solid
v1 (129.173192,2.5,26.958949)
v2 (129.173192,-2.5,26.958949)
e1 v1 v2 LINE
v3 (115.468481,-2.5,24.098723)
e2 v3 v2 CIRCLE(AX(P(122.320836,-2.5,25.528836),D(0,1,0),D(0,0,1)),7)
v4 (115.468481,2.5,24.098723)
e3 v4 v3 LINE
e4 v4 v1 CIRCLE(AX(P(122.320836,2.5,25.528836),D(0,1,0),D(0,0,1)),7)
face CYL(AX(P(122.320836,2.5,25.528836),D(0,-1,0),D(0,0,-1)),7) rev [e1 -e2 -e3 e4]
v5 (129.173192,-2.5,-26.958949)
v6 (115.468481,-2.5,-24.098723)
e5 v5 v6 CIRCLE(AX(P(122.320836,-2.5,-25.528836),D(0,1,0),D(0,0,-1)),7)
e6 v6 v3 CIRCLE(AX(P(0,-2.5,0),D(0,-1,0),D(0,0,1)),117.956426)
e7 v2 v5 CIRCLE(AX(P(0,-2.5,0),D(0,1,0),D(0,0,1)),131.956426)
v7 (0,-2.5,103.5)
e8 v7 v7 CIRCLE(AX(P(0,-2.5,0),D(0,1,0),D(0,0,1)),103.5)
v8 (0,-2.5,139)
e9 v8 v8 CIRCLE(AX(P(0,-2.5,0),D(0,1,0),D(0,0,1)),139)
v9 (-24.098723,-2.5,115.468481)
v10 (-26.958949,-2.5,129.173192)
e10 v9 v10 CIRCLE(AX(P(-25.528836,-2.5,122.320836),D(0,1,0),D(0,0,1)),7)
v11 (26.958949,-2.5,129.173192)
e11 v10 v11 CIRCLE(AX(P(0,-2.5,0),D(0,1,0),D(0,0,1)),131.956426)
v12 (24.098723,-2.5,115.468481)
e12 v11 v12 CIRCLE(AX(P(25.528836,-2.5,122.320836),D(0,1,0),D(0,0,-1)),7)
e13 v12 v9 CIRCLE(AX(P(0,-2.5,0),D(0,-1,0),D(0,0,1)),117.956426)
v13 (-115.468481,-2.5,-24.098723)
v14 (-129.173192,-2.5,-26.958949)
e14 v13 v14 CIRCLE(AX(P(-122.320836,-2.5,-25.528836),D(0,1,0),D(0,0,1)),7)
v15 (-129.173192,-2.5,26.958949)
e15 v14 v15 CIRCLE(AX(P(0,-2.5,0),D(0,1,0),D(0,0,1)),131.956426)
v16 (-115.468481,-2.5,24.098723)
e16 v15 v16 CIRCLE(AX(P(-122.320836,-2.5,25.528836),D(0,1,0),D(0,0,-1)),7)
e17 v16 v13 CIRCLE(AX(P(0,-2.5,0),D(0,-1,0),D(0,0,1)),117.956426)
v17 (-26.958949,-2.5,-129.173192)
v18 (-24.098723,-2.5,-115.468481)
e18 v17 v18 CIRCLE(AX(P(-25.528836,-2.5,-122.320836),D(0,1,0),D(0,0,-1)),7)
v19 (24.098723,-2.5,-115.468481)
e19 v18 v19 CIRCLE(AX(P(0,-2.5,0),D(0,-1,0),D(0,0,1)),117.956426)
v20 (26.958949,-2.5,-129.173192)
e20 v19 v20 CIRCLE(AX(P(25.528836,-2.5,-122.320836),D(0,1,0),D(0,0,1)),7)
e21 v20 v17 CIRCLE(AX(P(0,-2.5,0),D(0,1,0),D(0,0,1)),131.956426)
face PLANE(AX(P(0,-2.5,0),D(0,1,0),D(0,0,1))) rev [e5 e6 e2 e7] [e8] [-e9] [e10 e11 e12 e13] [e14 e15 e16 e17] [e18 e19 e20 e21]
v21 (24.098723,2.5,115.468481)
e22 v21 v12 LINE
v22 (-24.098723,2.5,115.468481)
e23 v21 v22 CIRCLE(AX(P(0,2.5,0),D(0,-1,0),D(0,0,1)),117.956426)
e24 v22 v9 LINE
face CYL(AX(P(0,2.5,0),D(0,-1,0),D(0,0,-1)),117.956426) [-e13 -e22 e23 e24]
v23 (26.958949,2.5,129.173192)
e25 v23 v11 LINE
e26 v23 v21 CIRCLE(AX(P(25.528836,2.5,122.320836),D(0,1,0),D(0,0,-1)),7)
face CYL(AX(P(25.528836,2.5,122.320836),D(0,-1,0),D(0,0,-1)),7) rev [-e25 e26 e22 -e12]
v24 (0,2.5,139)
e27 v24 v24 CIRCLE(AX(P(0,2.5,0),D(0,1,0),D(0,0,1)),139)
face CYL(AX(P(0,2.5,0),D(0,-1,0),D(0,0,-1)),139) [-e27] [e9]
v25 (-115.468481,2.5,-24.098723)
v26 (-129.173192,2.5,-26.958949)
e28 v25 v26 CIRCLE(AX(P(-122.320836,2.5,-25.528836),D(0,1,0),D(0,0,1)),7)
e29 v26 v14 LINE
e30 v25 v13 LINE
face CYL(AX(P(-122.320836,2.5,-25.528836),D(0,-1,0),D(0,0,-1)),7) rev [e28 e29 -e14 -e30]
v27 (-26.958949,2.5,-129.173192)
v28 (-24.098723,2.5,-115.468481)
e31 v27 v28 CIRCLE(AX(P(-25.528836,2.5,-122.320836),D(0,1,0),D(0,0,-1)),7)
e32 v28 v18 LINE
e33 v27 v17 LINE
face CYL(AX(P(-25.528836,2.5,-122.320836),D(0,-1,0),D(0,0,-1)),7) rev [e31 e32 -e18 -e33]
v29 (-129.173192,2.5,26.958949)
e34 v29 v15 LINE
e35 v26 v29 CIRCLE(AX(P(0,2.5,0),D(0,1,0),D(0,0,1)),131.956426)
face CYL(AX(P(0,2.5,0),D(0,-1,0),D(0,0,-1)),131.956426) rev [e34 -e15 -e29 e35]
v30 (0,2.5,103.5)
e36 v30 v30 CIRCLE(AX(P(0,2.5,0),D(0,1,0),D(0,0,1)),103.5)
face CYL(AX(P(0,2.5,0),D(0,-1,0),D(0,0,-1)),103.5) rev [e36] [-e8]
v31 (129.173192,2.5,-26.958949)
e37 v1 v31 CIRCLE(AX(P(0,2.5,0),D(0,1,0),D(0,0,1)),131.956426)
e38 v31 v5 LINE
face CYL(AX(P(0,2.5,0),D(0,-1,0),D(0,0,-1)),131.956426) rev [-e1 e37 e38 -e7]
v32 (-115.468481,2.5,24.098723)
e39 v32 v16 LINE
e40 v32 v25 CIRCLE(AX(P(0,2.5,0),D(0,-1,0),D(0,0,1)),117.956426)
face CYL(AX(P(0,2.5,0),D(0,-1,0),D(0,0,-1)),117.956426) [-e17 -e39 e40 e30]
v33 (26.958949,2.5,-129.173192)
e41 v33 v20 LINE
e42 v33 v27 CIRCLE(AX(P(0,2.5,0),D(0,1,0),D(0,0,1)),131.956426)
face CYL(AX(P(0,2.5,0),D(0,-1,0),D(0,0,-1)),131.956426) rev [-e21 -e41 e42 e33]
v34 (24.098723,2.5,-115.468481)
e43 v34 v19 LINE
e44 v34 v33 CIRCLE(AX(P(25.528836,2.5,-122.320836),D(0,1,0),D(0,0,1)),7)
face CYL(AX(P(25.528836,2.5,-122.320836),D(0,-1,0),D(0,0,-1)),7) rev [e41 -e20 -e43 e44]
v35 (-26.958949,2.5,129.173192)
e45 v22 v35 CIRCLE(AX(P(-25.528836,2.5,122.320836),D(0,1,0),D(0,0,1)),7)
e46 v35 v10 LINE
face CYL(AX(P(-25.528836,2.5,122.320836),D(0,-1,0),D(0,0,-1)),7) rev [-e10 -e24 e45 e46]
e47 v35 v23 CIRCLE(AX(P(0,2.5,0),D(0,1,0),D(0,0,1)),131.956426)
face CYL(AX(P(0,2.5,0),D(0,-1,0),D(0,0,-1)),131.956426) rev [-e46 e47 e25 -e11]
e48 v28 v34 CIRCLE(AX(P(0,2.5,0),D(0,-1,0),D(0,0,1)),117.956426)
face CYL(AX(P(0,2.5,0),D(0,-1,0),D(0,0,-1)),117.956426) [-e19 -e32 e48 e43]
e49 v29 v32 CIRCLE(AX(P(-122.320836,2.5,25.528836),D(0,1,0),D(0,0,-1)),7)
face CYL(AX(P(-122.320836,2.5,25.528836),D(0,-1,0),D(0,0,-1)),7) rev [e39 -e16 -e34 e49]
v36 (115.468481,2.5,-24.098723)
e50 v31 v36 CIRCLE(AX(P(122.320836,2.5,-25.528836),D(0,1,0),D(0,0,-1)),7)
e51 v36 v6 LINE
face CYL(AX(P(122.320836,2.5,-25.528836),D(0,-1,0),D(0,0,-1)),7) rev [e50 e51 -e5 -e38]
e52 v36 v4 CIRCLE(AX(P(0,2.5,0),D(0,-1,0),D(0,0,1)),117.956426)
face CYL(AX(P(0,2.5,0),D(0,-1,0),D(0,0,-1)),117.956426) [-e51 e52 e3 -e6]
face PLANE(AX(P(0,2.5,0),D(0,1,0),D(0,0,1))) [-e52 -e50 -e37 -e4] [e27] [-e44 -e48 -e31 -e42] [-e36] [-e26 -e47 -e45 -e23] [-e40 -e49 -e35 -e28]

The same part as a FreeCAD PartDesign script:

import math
import FreeCAD as App
import Part
import Sketcher
from FreeCAD import Vector
Q = App.Units.Quantity

doc = App.newDocument("Part")
params = doc.addObject("Spreadsheet::Sheet", "Params")
for row, (alias, value) in enumerate([
    ("sketch1_diameter", "278 mm"),
    ("sketch1_diameter2", "207 mm"),
    ("sketch1_radius", "7 mm"),
    ("pad1_length", "5 mm"),
], start=1):
    params.set(f"A{row}", alias)
    params.set(f"B{row}", "=" + value)
    params.setAlias(f"B{row}", alias)

body = doc.addObject("PartDesign::Body", "Body")

# Sketch on XZ plane
sketch1 = body.newObject("Sketcher::SketchObject", "Sketch")
sketch1.AttachmentSupport = (doc.getObject("XZ_Plane"), [""])
sketch1.MapMode = "FlatFace"
sketch1.addGeometry(Part.Circle(Vector(0, 0, 0), Vector(0, 0, 1), 139), False)
sketch1.addGeometry(Part.ArcOfCircle(Part.Circle(Vector(0, 0, 0), Vector(0, 0, 1), 117.956426), math.radians(-101.788636), math.radians(-78.211364)), False)
sketch1.addGeometry(Part.ArcOfCircle(Part.Circle(Vector(-25.528836, -122.320836, 0), Vector(0, 0, 1), 7), math.radians(78.211364), math.radians(258.211364)), False)
sketch1.addGeometry(Part.ArcOfCircle(Part.Circle(Vector(0, 0, 0), Vector(0, 0, 1), 131.956426), math.radians(-101.788636), math.radians(-78.211364)), False)
sketch1.addGeometry(Part.ArcOfCircle(Part.Circle(Vector(25.528836, -122.320836, 0), Vector(0, 0, 1), 7), math.radians(-78.211364), math.radians(101.788636)), False)
sketch1.addGeometry(Part.ArcOfCircle(Part.Circle(Vector(-122.320836, -25.528836, 0), Vector(0, 0, 1), 7), math.radians(-168.211364), math.radians(11.788636)), False)
sketch1.addGeometry(Part.ArcOfCircle(Part.Circle(Vector(0, 0, 0), Vector(0, 0, 1), 117.956426), math.radians(168.211364), math.radians(191.788636)), False)
sketch1.addGeometry(Part.ArcOfCircle(Part.Circle(Vector(-122.320836, 25.528836, 0), Vector(0, 0, 1), 7), math.radians(-11.788636), math.radians(168.211364)), False)
sketch1.addGeometry(Part.ArcOfCircle(Part.Circle(Vector(0, 0, 0), Vector(0, 0, 1), 131.956426), math.radians(168.211364), math.radians(191.788636)), False)
sketch1.addGeometry(Part.ArcOfCircle(Part.Circle(Vector(0, 0, 0), Vector(0, 0, 1), 117.956426), math.radians(-11.788636), math.radians(11.788636)), False)
sketch1.addGeometry(Part.ArcOfCircle(Part.Circle(Vector(122.320836, -25.528836, 0), Vector(0, 0, 1), 7), math.radians(168.211364), math.radians(348.211364)), False)
sketch1.addGeometry(Part.ArcOfCircle(Part.Circle(Vector(0, 0, 0), Vector(0, 0, 1), 131.956426), math.radians(-11.788636), math.radians(11.788636)), False)
sketch1.addGeometry(Part.ArcOfCircle(Part.Circle(Vector(122.320836, 25.528836, 0), Vector(0, 0, 1), 7), math.radians(11.788636), math.radians(191.788636)), False)
sketch1.addGeometry(Part.Circle(Vector(0, 0, 0), Vector(0, 0, 1), 103.5), False)
sketch1.addGeometry(Part.ArcOfCircle(Part.Circle(Vector(0, 0, 0), Vector(0, 0, 1), 117.956426), math.radians(78.211364), math.radians(101.788636)), False)
sketch1.addGeometry(Part.ArcOfCircle(Part.Circle(Vector(25.528836, 122.320836, 0), Vector(0, 0, 1), 7), math.radians(-101.788636), math.radians(78.211364)), False)
sketch1.addGeometry(Part.ArcOfCircle(Part.Circle(Vector(0, 0, 0), Vector(0, 0, 1), 131.956426), math.radians(78.211364), math.radians(101.788636)), False)
sketch1.addGeometry(Part.ArcOfCircle(Part.Circle(Vector(-25.528836, 122.320836, 0), Vector(0, 0, 1), 7), math.radians(101.788636), math.radians(281.788636)), False)
sketch1.addConstraint(Sketcher.Constraint("Tangent", 1, 1, 2, 1))
sketch1.addConstraint(Sketcher.Constraint("Tangent", 2, 2, 3, 1))
sketch1.addConstraint(Sketcher.Constraint("Tangent", 3, 2, 4, 1))
sketch1.addConstraint(Sketcher.Constraint("Tangent", 4, 2, 1, 2))
sketch1.addConstraint(Sketcher.Constraint("Tangent", 5, 2, 6, 2))
sketch1.addConstraint(Sketcher.Constraint("Tangent", 6, 1, 7, 1))
sketch1.addConstraint(Sketcher.Constraint("Tangent", 7, 2, 8, 1))
sketch1.addConstraint(Sketcher.Constraint("Tangent", 8, 2, 5, 1))
sketch1.addConstraint(Sketcher.Constraint("Tangent", 9, 1, 10, 1))
sketch1.addConstraint(Sketcher.Constraint("Tangent", 10, 2, 11, 1))
sketch1.addConstraint(Sketcher.Constraint("Tangent", 11, 2, 12, 1))
sketch1.addConstraint(Sketcher.Constraint("Tangent", 12, 2, 9, 2))
sketch1.addConstraint(Sketcher.Constraint("Tangent", 14, 1, 15, 1))
sketch1.addConstraint(Sketcher.Constraint("Tangent", 15, 2, 16, 1))
sketch1.addConstraint(Sketcher.Constraint("Tangent", 16, 2, 17, 1))
sketch1.addConstraint(Sketcher.Constraint("Tangent", 17, 2, 14, 2))
sketch1.addConstraint(Sketcher.Constraint("Coincident", 0, 3, -1, 1))
sketch1.addConstraint(Sketcher.Constraint("Coincident", 1, 3, -1, 1))
sketch1.addConstraint(Sketcher.Constraint("Coincident", 3, 3, -1, 1))
sketch1.addConstraint(Sketcher.Constraint("Coincident", 6, 3, -1, 1))
sketch1.addConstraint(Sketcher.Constraint("Coincident", 8, 3, -1, 1))
sketch1.addConstraint(Sketcher.Constraint("Coincident", 9, 3, -1, 1))
sketch1.addConstraint(Sketcher.Constraint("Coincident", 11, 3, -1, 1))
sketch1.addConstraint(Sketcher.Constraint("Coincident", 13, 3, -1, 1))
sketch1.addConstraint(Sketcher.Constraint("Coincident", 14, 3, -1, 1))
sketch1.addConstraint(Sketcher.Constraint("Coincident", 16, 3, -1, 1))
sketch1.addConstraint(Sketcher.Constraint("Equal", 4, 5))
sketch1.addConstraint(Sketcher.Constraint("Equal", 1, 6))
sketch1.addConstraint(Sketcher.Constraint("Equal", 6, 9))
sketch1.addConstraint(Sketcher.Constraint("Equal", 7, 10))
sketch1.addConstraint(Sketcher.Constraint("Equal", 9, 14))
sketch1.addConstraint(Sketcher.Constraint("Equal", 12, 15))
sketch1.addConstraint(Sketcher.Constraint("Horizontal", 2, 3, 4, 3))
sketch1.addConstraint(Sketcher.Constraint("Horizontal", 5, 3, 10, 3))
sketch1.addConstraint(Sketcher.Constraint("Horizontal", 7, 3, 12, 3))
sketch1.addConstraint(Sketcher.Constraint("Horizontal", 15, 3, 17, 3))
sketch1.addConstraint(Sketcher.Constraint("Vertical", 5, 3, 7, 3))
sketch1.addConstraint(Sketcher.Constraint("Vertical", 4, 3, 15, 3))
sketch1.addConstraint(Sketcher.Constraint("Diameter", 0, Q("278 mm")))
sketch1.addConstraint(Sketcher.Constraint("Diameter", 13, Q("207 mm")))
sketch1.addConstraint(Sketcher.Constraint("Radius", 2, Q("7 mm")))
sketch1.addConstraint(Sketcher.Constraint("Radius", 1, Q("117.956426 mm")))
sketch1.addConstraint(Sketcher.Constraint("DistanceX", 5, 3, 2, 3, Q("96.792 mm")))
sketch1.addConstraint(Sketcher.Constraint("DistanceY", 2, 3, 5, 3, Q("96.792 mm")))
sketch1.setExpression("Constraints[38]", "Params.sketch1_diameter")
sketch1.setExpression("Constraints[39]", "Params.sketch1_diameter2")
sketch1.setExpression("Constraints[40]", "Params.sketch1_radius")
pad1 = body.newObject("PartDesign::Pad", "Pad")
pad1.Profile = sketch1
pad1.setExpression("Length", "Params.pad1_length")
pad1.Midplane = True

doc.recompute()
